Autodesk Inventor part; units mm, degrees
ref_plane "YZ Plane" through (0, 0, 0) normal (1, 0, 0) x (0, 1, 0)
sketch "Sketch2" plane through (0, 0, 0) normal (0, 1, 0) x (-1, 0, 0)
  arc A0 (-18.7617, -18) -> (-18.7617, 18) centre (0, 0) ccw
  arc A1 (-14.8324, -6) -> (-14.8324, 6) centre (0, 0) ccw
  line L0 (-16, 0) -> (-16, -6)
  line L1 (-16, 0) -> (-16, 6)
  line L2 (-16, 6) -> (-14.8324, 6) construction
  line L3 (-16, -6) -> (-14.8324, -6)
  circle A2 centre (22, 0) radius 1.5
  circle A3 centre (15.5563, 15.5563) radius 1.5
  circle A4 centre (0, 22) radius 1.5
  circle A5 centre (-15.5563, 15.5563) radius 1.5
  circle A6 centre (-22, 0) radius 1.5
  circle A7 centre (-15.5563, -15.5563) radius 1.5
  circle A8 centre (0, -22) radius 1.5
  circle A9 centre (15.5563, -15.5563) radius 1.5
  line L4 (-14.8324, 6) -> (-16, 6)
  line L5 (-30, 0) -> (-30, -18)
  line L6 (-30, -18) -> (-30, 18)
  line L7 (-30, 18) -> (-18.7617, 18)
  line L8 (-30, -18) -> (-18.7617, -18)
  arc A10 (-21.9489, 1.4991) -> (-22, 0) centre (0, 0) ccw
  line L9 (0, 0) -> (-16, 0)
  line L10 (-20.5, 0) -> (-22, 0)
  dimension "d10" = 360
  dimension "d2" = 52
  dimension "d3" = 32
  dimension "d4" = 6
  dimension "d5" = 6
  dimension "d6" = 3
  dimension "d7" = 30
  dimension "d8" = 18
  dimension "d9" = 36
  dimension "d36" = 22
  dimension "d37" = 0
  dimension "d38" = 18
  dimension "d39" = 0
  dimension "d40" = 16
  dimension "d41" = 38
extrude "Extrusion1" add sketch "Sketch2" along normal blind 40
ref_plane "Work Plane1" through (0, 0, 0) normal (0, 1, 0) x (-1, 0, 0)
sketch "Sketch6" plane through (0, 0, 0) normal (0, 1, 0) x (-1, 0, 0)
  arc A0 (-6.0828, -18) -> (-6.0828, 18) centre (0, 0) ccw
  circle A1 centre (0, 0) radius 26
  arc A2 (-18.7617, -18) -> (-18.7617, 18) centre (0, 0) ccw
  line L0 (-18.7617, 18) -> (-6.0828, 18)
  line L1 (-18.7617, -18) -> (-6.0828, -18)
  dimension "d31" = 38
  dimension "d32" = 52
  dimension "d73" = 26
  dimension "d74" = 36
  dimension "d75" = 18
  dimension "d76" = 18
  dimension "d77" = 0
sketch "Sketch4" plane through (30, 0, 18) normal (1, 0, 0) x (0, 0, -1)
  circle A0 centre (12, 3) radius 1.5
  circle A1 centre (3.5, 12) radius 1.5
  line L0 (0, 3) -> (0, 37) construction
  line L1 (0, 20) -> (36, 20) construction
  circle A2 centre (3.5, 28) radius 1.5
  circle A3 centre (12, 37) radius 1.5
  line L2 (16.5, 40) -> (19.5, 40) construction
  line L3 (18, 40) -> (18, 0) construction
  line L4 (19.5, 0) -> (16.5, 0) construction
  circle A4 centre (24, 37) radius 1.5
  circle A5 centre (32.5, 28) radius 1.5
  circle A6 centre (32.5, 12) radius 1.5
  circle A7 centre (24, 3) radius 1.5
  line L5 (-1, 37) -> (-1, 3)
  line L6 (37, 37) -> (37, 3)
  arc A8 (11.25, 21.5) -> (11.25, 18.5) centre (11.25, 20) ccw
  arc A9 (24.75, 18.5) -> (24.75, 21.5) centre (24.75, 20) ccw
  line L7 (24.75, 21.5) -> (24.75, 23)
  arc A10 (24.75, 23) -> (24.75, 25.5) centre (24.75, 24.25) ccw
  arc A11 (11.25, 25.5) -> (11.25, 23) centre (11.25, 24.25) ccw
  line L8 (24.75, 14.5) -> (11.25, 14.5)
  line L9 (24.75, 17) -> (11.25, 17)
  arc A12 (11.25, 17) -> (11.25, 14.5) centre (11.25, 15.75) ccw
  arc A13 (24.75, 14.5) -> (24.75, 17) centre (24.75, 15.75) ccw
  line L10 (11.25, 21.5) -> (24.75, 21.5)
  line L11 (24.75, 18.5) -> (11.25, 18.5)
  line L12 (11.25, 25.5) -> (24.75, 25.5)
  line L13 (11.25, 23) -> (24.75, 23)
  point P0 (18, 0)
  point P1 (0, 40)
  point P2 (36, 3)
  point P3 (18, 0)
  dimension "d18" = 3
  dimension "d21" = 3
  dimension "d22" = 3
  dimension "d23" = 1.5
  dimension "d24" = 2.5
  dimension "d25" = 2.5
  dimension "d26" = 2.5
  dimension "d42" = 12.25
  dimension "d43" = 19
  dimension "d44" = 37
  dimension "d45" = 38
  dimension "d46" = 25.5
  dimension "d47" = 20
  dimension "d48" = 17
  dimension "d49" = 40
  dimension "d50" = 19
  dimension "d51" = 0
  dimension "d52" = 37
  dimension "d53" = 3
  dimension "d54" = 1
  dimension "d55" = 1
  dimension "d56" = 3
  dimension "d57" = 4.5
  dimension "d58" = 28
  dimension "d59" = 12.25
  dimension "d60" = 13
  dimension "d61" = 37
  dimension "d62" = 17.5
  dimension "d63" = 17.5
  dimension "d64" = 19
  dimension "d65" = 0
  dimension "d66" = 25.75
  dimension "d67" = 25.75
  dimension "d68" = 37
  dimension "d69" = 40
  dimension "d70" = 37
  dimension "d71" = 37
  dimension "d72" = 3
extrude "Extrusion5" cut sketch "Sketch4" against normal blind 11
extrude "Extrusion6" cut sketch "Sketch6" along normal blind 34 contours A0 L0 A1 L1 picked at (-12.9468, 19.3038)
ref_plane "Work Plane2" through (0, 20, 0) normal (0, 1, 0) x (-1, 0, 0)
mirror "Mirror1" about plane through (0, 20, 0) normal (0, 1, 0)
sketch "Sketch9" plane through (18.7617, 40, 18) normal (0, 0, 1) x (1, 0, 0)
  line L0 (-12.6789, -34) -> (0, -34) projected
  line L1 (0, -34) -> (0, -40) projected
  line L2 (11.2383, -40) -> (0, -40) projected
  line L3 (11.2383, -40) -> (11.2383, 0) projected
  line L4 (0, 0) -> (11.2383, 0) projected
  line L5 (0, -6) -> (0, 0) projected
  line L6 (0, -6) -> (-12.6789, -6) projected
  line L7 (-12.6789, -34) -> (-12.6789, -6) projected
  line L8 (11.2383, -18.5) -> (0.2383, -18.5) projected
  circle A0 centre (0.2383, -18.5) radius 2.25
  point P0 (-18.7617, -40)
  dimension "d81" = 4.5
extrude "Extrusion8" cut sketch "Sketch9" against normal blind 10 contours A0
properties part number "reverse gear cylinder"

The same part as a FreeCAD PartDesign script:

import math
import FreeCAD as App
import Part
import Sketcher
from FreeCAD import Vector
Q = App.Units.Quantity

doc = App.newDocument("Part")
body = doc.addObject("PartDesign::Body", "Body")

# Sketch on XZ plane
sketch1 = doc.addObject("Sketcher::SketchObject", "Sketch")
body.addObject(sketch1)
sketch1.AttachmentSupport = (doc.XZ_Plane, [""])
sketch1.MapMode = "FlatFace"
sketch1.addGeometry(Part.LineSegment(Vector(30, -18, 0), Vector(18.7617, -18, 0)), False)
sketch1.addGeometry(Part.ArcOfCircle(Part.Circle(Vector(0, 0, 0), Vector(0, 0, 1), 26.000027), math.radians(43.813005), math.radians(316.186995)), False)
sketch1.addGeometry(Part.LineSegment(Vector(18.7617, 18, 0), Vector(30, 18, 0)), False)
sketch1.addGeometry(Part.LineSegment(Vector(30, 18, 0), Vector(30, -18, 0)), False)
sketch1.addGeometry(Part.Circle(Vector(15.5563, -15.5563, 0), Vector(0, 0, 1), 1.5), False)
sketch1.addGeometry(Part.Circle(Vector(22, 0, 0), Vector(0, 0, 1), 1.5), False)
sketch1.addGeometry(Part.Circle(Vector(0, -22, 0), Vector(0, 0, 1), 1.5), False)
sketch1.addGeometry(Part.Circle(Vector(-15.5563, -15.5563, 0), Vector(0, 0, 1), 1.5), False)
sketch1.addGeometry(Part.Circle(Vector(-22, 0, 0), Vector(0, 0, 1), 1.5), False)
sketch1.addGeometry(Part.Circle(Vector(15.5563, 15.5563, 0), Vector(0, 0, 1), 1.5), False)
sketch1.addGeometry(Part.ArcOfCircle(Part.Circle(Vector(0, 0, 0), Vector(0, 0, 1), 16.000003), math.radians(22.024309), math.radians(337.975691)), False)
sketch1.addGeometry(Part.LineSegment(Vector(14.8324, -6, 0), Vector(16, -6, 0)), False)
sketch1.addGeometry(Part.LineSegment(Vector(16, -6, 0), Vector(16, 6, 0)), False)
sketch1.addGeometry(Part.LineSegment(Vector(16, 6, 0), Vector(14.8324, 6, 0)), False)
sketch1.addGeometry(Part.Circle(Vector(0, 22, 0), Vector(0, 0, 1), 1.5), False)
sketch1.addGeometry(Part.Circle(Vector(-15.5563, 15.5563, 0), Vector(0, 0, 1), 1.5), False)
sketch1.addConstraint(Sketcher.Constraint("Coincident", 0, 2, 1, 2))
sketch1.addConstraint(Sketcher.Constraint("Coincident", 1, 1, 2, 1))
sketch1.addConstraint(Sketcher.Constraint("Coincident", 2, 2, 3, 1))
sketch1.addConstraint(Sketcher.Constraint("Coincident", 3, 2, 0, 1))
sketch1.addConstraint(Sketcher.Constraint("Coincident", 10, 2, 11, 1))
sketch1.addConstraint(Sketcher.Constraint("Coincident", 11, 2, 12, 1))
sketch1.addConstraint(Sketcher.Constraint("Coincident", 12, 2, 13, 1))
sketch1.addConstraint(Sketcher.Constraint("Coincident", 13, 2, 10, 1))
sketch1.addConstraint(Sketcher.Constraint("Horizontal", 0))
sketch1.addConstraint(Sketcher.Constraint("Horizontal", 2))
sketch1.addConstraint(Sketcher.Constraint("Vertical", 3))
sketch1.addConstraint(Sketcher.Constraint("Horizontal", 11))
sketch1.addConstraint(Sketcher.Constraint("Vertical", 12))
sketch1.addConstraint(Sketcher.Constraint("Horizontal", 13))
sketch1.addConstraint(Sketcher.Constraint("Coincident", 1, 3, -1, 1))
sketch1.addConstraint(Sketcher.Constraint("Coincident", 10, 3, -1, 1))
sketch1.addConstraint(Sketcher.Constraint("Equal", 4, 5))
sketch1.addConstraint(Sketcher.Constraint("Equal", 5, 6))
sketch1.addConstraint(Sketcher.Constraint("Equal", 6, 7))
sketch1.addConstraint(Sketcher.Constraint("Equal", 7, 8))
sketch1.addConstraint(Sketcher.Constraint("Equal", 8, 9))
sketch1.addConstraint(Sketcher.Constraint("Equal", 9, 14))
sketch1.addConstraint(Sketcher.Constraint("Equal", 14, 15))
sketch1.addConstraint(Sketcher.Constraint("Symmetric", 5, 3, 8, 3, -1, 1))
sketch1.addConstraint(Sketcher.Constraint("Symmetric", 7, 3, 9, 3, -1, 1))
sketch1.addConstraint(Sketcher.Constraint("Symmetric", 6, 3, 14, 3, -1, 1))
sketch1.addConstraint(Sketcher.Constraint("Symmetric", 4, 3, 15, 3, -1, 1))
sketch1.addConstraint(Sketcher.Constraint("Symmetric", 4, 3, 7, 3, -2))
sketch1.addConstraint(Sketcher.Constraint("PointOnObject", 5, 3, -1))
sketch1.addConstraint(Sketcher.Constraint("PointOnObject", 6, 3, -2))
sketch1.addConstraint(Sketcher.Constraint("Vertical", 0, 2, 1, 1))
sketch1.addConstraint(Sketcher.Constraint("Vertical", 10, 2, 13, 2))
sketch1.addConstraint(Sketcher.Constraint("Diameter", 4, Q("3 mm")))
sketch1.addConstraint(Sketcher.Constraint("Radius", 1, Q("26 mm")))
sketch1.addConstraint(Sketcher.Constraint("Radius", 10, Q("16 mm")))
sketch1.addConstraint(Sketcher.Constraint("DistanceY", 3, 2, 3, 1, Q("36 mm")))
sketch1.addConstraint(Sketcher.Constraint("DistanceX", -1, 1, 5, 3, Q("22 mm")))
sketch1.addConstraint(Sketcher.Constraint("DistanceY", 6, 3, -1, 1, Q("22 mm")))
sketch1.addConstraint(Sketcher.Constraint("DistanceX", -1, 1, 2, 2, Q("30 mm")))
sketch1.addConstraint(Sketcher.Constraint("DistanceY", 10, 2, -1, 1, Q("6 mm")))
sketch1.addConstraint(Sketcher.Constraint("DistanceX", -1, 1, 11, 2, Q("16 mm")))
sketch1.addConstraint(Sketcher.Constraint("DistanceX", 10, 2, 4, 3, Q("0.724 mm")))
sketch1.addConstraint(Sketcher.Constraint("DistanceY", 4, 3, -1, 1, Q("15.5563 mm")))
pad1 = doc.addObject("PartDesign::Pad", "Pad")
body.addObject(pad1)
pad1.Profile = sketch1
pad1.Length = 40
pad1.Reversed = True

# Sketch on YZ plane
sketch2 = doc.addObject("Sketcher::SketchObject", "Sketch001")
body.addObject(sketch2)
sketch2.AttachmentSupport = (doc.YZ_Plane, [""])
sketch2.MapMode = "FlatFace"
sketch2.AttachmentOffset = App.Placement(Vector(0, 0, 30), App.Rotation())
sketch2.addGeometry(Part.Circle(Vector(3, 6, 0), Vector(0, 0, 1), 1.5), False)
sketch2.addGeometry(Part.Circle(Vector(12, 14.5, 0), Vector(0, 0, 1), 1.5), False)
sketch2.addGeometry(Part.Circle(Vector(28, 14.5, 0), Vector(0, 0, 1), 1.5), False)
sketch2.addGeometry(Part.Circle(Vector(37, 6, 0), Vector(0, 0, 1), 1.5), False)
sketch2.addGeometry(Part.Circle(Vector(37, -6, 0), Vector(0, 0, 1), 1.5), False)
sketch2.addGeometry(Part.Circle(Vector(28, -14.5, 0), Vector(0, 0, 1), 1.5), False)
sketch2.addGeometry(Part.Circle(Vector(12, -14.5, 0), Vector(0, 0, 1), 1.5), False)
sketch2.addGeometry(Part.Circle(Vector(3, -6, 0), Vector(0, 0, 1), 1.5), False)
sketch2.addGeometry(Part.LineSegment(Vector(21.5, -6.75, 0), Vector(21.5, 6.75, 0)), False)
sketch2.addGeometry(Part.ArcOfCircle(Part.Circle(Vector(20, 6.75, 0), Vector(0, 0, 1), 1.5), math.radians(0), math.radians(180)), False)
sketch2.addGeometry(Part.LineSegment(Vector(18.5, 6.75, 0), Vector(18.5, -6.75, 0)), False)
sketch2.addGeometry(Part.ArcOfCircle(Part.Circle(Vector(20, -6.75, 0), Vector(0, 0, 1), 1.5), math.radians(180), math.radians(360)), False)
sketch2.addGeometry(Part.LineSegment(Vector(23, 6.75, 0), Vector(23, -6.75, 0)), False)
sketch2.addGeometry(Part.ArcOfCircle(Part.Circle(Vector(24.25, -6.75, 0), Vector(0, 0, 1), 1.25), math.radians(180), math.radians(360)), False)
sketch2.addGeometry(Part.LineSegment(Vector(25.5, -6.75, 0), Vector(25.5, 6.75, 0)), False)
sketch2.addGeometry(Part.ArcOfCircle(Part.Circle(Vector(24.25, 6.75, 0), Vector(0, 0, 1), 1.25), math.radians(0), math.radians(180)), False)
sketch2.addGeometry(Part.LineSegment(Vector(14.5, 6.75, 0), Vector(14.5, -6.75, 0)), False)
sketch2.addGeometry(Part.ArcOfCircle(Part.Circle(Vector(15.75, -6.75, 0), Vector(0, 0, 1), 1.25), math.radians(180), math.radians(360)), False)
sketch2.addGeometry(Part.LineSegment(Vector(17, -6.75, 0), Vector(17, 6.75, 0)), False)
sketch2.addGeometry(Part.ArcOfCircle(Part.Circle(Vector(15.75, 6.75, 0), Vector(0, 0, 1), 1.25), math.radians(0), math.radians(180)), False)
sketch2.addConstraint(Sketcher.Constraint("Tangent", 8, 2, 9, 1))
sketch2.addConstraint(Sketcher.Constraint("Tangent", 9, 2, 10, 1))
sketch2.addConstraint(Sketcher.Constraint("Tangent", 10, 2, 11, 1))
sketch2.addConstraint(Sketcher.Constraint("Tangent", 11, 2, 8, 1))
sketch2.addConstraint(Sketcher.Constraint("Tangent", 12, 2, 13, 1))
sketch2.addConstraint(Sketcher.Constraint("Tangent", 13, 2, 14, 1))
sketch2.addConstraint(Sketcher.Constraint("Tangent", 14, 2, 15, 1))
sketch2.addConstraint(Sketcher.Constraint("Tangent", 15, 2, 12, 1))
sketch2.addConstraint(Sketcher.Constraint("Tangent", 16, 2, 17, 1))
sketch2.addConstraint(Sketcher.Constraint("Tangent", 17, 2, 18, 1))
sketch2.addConstraint(Sketcher.Constraint("Tangent", 18, 2, 19, 1))
sketch2.addConstraint(Sketcher.Constraint("Tangent", 19, 2, 16, 1))
sketch2.addConstraint(Sketcher.Constraint("Vertical", 8))
sketch2.addConstraint(Sketcher.Constraint("Vertical", 10))
sketch2.addConstraint(Sketcher.Constraint("Vertical", 12))
sketch2.addConstraint(Sketcher.Constraint("Vertical", 14))
sketch2.addConstraint(Sketcher.Constraint("Vertical", 16))
sketch2.addConstraint(Sketcher.Constraint("Vertical", 18))
sketch2.addConstraint(Sketcher.Constraint("Equal", 0, 1))
sketch2.addConstraint(Sketcher.Constraint("Equal", 1, 2))
sketch2.addConstraint(Sketcher.Constraint("Equal", 2, 3))
sketch2.addConstraint(Sketcher.Constraint("Equal", 3, 4))
sketch2.addConstraint(Sketcher.Constraint("Equal", 4, 5))
sketch2.addConstraint(Sketcher.Constraint("Equal", 5, 6))
sketch2.addConstraint(Sketcher.Constraint("Equal", 6, 7))
sketch2.addConstraint(Sketcher.Constraint("Equal", 7, 9))
sketch2.addConstraint(Sketcher.Constraint("Equal", 15, 17))
sketch2.addConstraint(Sketcher.Constraint("Symmetric", 3, 3, 4, 3, -1))
sketch2.addConstraint(Sketcher.Constraint("Symmetric", 2, 3, 5, 3, -1))
sketch2.addConstraint(Sketcher.Constraint("Symmetric", 1, 3, 6, 3, -1))
sketch2.addConstraint(Sketcher.Constraint("Symmetric", 0, 3, 7, 3, -1))
sketch2.addConstraint(Sketcher.Constraint("Horizontal", 1, 3, 2, 3))
sketch2.addConstraint(Sketcher.Constraint("Horizontal", 0, 3, 3, 3))
sketch2.addConstraint(Sketcher.Constraint("Horizontal", 11, 3, 13, 3))
sketch2.addConstraint(Sketcher.Constraint("Horizontal", 9, 3, 15, 3))
sketch2.addConstraint(Sketcher.Constraint("Horizontal", 13, 3, 17, 3))
sketch2.addConstraint(Sketcher.Constraint("Horizontal", 15, 3, 19, 3))
sketch2.addConstraint(Sketcher.Constraint("Diameter", 0, Q("3 mm")))
sketch2.addConstraint(Sketcher.Constraint("Radius", 13, Q("1.25 mm")))
sketch2.addConstraint(Sketcher.Constraint("DistanceX", -1, 1, 0, 3, Q("3 mm")))
sketch2.addConstraint(Sketcher.Constraint("DistanceX", -1, 1, 2, 3, Q("28 mm")))
sketch2.addConstraint(Sketcher.Constraint("DistanceX", -1, 1, 3, 3, Q("37 mm")))
sketch2.addConstraint(Sketcher.Constraint("DistanceX", -1, 1, 9, 3, Q("20 mm")))
sketch2.addConstraint(Sketcher.Constraint("DistanceX", -1, 1, 17, 2, Q("17 mm")))
sketch2.addConstraint(Sketcher.Constraint("DistanceX", 11, 3, 12, 2, Q("3 mm")))
sketch2.addConstraint(Sketcher.Constraint("DistanceX", 6, 3, 16, 2, Q("2.5 mm")))
sketch2.addConstraint(Sketcher.Constraint("DistanceY", 8, 1, 8, 2, Q("13.5 mm")))
sketch2.addConstraint(Sketcher.Constraint("DistanceY", -1, 1, 0, 3, Q("6 mm")))
sketch2.addConstraint(Sketcher.Constraint("DistanceY", 5, 3, 2, 3, Q("29 mm")))
sketch2.addConstraint(Sketcher.Constraint("DistanceY", -1, 1, 9, 3, Q("6.75 mm")))
pocket1 = doc.addObject("PartDesign::Pocket", "Pocket")
body.addObject(pocket1)
pocket1.Profile = sketch2
pocket1.Length = 11

# Sketch on XZ plane
sketch3 = doc.addObject("Sketcher::SketchObject", "Sketch002")
body.addObject(sketch3)
sketch3.AttachmentSupport = (doc.XZ_Plane, [""])
sketch3.MapMode = "FlatFace"
sketch3.addGeometry(Part.ArcOfCircle(Part.Circle(Vector(0, 0, 0), Vector(0, 0, 1), 19.000012), math.radians(71.328175), math.radians(288.671825)), False)
sketch3.addGeometry(Part.LineSegment(Vector(6.0828, -18, 0), Vector(18.7617, -18, 0)), False)
sketch3.addGeometry(Part.ArcOfCircle(Part.Circle(Vector(0, 0, 0), Vector(0, 0, 1), 26), math.radians(43.813005), math.radians(316.186995)), False)
sketch3.addGeometry(Part.LineSegment(Vector(18.7617, 18, 0), Vector(6.0828, 18, 0)), False)
sketch3.addConstraint(Sketcher.Constraint("Coincident", 0, 2, 1, 1))
sketch3.addConstraint(Sketcher.Constraint("Coincident", 1, 2, 2, 2))
sketch3.addConstraint(Sketcher.Constraint("Coincident", 2, 1, 3, 1))
sketch3.addConstraint(Sketcher.Constraint("Coincident", 3, 2, 0, 1))
sketch3.addConstraint(Sketcher.Constraint("Horizontal", 1))
sketch3.addConstraint(Sketcher.Constraint("Horizontal", 3))
sketch3.addConstraint(Sketcher.Constraint("Coincident", 0, 3, -1, 1))
sketch3.addConstraint(Sketcher.Constraint("Coincident", 2, 3, -1, 1))
sketch3.addConstraint(Sketcher.Constraint("Vertical", 1, 2, 2, 1))
sketch3.addConstraint(Sketcher.Constraint("Radius", 0, Q("19 mm")))
sketch3.addConstraint(Sketcher.Constraint("Radius", 2, Q("26 mm")))
sketch3.addConstraint(Sketcher.Constraint("DistanceY", 0, 2, -1, 1, Q("18 mm")))
pocket2 = doc.addObject("PartDesign::Pocket", "Pocket001")
body.addObject(pocket2)
pocket2.Profile = sketch3
pocket2.Length = 34
doc.recompute()

datumplane = doc.addObject("PartDesign::Plane", "DatumPlane")
body.addObject(datumplane)
datumplane.AttachmentSupport = (doc.XZ_Plane, [""])
datumplane.MapMode = "FlatFace"
datumplane.AttachmentOffset = App.Placement(Vector(0, 0, -20), App.Rotation())
mirrored = doc.addObject("PartDesign::Mirrored", "Mirrored")
body.addObject(mirrored)
mirrored.TransformMode = "Transform body"
mirrored.MirrorPlane = (datumplane, [""])
body.Tip = mirrored

# Sketch on XY plane
sketch4 = doc.addObject("Sketcher::SketchObject", "Sketch003")
body.addObject(sketch4)
sketch4.AttachmentSupport = (doc.XY_Plane, [""])
sketch4.MapMode = "FlatFace"
sketch4.AttachmentOffset = App.Placement(Vector(0, 0, 18), App.Rotation())
sketch4.addGeometry(Part.Circle(Vector(19, 21.5, 0), Vector(0, 0, 1), 2.25), False)
sketch4.addConstraint(Sketcher.Constraint("Diameter", 0, Q("4.5 mm")))
sketch4.addConstraint(Sketcher.Constraint("DistanceX", -1, 1, 0, 3, Q("19 mm")))
sketch4.addConstraint(Sketcher.Constraint("DistanceY", -1, 1, 0, 3, Q("21.5 mm")))
pocket3 = doc.addObject("PartDesign::Pocket", "Pocket002")
body.addObject(pocket3)
pocket3.Profile = sketch4
pocket3.Length = 10

doc.recompute()
